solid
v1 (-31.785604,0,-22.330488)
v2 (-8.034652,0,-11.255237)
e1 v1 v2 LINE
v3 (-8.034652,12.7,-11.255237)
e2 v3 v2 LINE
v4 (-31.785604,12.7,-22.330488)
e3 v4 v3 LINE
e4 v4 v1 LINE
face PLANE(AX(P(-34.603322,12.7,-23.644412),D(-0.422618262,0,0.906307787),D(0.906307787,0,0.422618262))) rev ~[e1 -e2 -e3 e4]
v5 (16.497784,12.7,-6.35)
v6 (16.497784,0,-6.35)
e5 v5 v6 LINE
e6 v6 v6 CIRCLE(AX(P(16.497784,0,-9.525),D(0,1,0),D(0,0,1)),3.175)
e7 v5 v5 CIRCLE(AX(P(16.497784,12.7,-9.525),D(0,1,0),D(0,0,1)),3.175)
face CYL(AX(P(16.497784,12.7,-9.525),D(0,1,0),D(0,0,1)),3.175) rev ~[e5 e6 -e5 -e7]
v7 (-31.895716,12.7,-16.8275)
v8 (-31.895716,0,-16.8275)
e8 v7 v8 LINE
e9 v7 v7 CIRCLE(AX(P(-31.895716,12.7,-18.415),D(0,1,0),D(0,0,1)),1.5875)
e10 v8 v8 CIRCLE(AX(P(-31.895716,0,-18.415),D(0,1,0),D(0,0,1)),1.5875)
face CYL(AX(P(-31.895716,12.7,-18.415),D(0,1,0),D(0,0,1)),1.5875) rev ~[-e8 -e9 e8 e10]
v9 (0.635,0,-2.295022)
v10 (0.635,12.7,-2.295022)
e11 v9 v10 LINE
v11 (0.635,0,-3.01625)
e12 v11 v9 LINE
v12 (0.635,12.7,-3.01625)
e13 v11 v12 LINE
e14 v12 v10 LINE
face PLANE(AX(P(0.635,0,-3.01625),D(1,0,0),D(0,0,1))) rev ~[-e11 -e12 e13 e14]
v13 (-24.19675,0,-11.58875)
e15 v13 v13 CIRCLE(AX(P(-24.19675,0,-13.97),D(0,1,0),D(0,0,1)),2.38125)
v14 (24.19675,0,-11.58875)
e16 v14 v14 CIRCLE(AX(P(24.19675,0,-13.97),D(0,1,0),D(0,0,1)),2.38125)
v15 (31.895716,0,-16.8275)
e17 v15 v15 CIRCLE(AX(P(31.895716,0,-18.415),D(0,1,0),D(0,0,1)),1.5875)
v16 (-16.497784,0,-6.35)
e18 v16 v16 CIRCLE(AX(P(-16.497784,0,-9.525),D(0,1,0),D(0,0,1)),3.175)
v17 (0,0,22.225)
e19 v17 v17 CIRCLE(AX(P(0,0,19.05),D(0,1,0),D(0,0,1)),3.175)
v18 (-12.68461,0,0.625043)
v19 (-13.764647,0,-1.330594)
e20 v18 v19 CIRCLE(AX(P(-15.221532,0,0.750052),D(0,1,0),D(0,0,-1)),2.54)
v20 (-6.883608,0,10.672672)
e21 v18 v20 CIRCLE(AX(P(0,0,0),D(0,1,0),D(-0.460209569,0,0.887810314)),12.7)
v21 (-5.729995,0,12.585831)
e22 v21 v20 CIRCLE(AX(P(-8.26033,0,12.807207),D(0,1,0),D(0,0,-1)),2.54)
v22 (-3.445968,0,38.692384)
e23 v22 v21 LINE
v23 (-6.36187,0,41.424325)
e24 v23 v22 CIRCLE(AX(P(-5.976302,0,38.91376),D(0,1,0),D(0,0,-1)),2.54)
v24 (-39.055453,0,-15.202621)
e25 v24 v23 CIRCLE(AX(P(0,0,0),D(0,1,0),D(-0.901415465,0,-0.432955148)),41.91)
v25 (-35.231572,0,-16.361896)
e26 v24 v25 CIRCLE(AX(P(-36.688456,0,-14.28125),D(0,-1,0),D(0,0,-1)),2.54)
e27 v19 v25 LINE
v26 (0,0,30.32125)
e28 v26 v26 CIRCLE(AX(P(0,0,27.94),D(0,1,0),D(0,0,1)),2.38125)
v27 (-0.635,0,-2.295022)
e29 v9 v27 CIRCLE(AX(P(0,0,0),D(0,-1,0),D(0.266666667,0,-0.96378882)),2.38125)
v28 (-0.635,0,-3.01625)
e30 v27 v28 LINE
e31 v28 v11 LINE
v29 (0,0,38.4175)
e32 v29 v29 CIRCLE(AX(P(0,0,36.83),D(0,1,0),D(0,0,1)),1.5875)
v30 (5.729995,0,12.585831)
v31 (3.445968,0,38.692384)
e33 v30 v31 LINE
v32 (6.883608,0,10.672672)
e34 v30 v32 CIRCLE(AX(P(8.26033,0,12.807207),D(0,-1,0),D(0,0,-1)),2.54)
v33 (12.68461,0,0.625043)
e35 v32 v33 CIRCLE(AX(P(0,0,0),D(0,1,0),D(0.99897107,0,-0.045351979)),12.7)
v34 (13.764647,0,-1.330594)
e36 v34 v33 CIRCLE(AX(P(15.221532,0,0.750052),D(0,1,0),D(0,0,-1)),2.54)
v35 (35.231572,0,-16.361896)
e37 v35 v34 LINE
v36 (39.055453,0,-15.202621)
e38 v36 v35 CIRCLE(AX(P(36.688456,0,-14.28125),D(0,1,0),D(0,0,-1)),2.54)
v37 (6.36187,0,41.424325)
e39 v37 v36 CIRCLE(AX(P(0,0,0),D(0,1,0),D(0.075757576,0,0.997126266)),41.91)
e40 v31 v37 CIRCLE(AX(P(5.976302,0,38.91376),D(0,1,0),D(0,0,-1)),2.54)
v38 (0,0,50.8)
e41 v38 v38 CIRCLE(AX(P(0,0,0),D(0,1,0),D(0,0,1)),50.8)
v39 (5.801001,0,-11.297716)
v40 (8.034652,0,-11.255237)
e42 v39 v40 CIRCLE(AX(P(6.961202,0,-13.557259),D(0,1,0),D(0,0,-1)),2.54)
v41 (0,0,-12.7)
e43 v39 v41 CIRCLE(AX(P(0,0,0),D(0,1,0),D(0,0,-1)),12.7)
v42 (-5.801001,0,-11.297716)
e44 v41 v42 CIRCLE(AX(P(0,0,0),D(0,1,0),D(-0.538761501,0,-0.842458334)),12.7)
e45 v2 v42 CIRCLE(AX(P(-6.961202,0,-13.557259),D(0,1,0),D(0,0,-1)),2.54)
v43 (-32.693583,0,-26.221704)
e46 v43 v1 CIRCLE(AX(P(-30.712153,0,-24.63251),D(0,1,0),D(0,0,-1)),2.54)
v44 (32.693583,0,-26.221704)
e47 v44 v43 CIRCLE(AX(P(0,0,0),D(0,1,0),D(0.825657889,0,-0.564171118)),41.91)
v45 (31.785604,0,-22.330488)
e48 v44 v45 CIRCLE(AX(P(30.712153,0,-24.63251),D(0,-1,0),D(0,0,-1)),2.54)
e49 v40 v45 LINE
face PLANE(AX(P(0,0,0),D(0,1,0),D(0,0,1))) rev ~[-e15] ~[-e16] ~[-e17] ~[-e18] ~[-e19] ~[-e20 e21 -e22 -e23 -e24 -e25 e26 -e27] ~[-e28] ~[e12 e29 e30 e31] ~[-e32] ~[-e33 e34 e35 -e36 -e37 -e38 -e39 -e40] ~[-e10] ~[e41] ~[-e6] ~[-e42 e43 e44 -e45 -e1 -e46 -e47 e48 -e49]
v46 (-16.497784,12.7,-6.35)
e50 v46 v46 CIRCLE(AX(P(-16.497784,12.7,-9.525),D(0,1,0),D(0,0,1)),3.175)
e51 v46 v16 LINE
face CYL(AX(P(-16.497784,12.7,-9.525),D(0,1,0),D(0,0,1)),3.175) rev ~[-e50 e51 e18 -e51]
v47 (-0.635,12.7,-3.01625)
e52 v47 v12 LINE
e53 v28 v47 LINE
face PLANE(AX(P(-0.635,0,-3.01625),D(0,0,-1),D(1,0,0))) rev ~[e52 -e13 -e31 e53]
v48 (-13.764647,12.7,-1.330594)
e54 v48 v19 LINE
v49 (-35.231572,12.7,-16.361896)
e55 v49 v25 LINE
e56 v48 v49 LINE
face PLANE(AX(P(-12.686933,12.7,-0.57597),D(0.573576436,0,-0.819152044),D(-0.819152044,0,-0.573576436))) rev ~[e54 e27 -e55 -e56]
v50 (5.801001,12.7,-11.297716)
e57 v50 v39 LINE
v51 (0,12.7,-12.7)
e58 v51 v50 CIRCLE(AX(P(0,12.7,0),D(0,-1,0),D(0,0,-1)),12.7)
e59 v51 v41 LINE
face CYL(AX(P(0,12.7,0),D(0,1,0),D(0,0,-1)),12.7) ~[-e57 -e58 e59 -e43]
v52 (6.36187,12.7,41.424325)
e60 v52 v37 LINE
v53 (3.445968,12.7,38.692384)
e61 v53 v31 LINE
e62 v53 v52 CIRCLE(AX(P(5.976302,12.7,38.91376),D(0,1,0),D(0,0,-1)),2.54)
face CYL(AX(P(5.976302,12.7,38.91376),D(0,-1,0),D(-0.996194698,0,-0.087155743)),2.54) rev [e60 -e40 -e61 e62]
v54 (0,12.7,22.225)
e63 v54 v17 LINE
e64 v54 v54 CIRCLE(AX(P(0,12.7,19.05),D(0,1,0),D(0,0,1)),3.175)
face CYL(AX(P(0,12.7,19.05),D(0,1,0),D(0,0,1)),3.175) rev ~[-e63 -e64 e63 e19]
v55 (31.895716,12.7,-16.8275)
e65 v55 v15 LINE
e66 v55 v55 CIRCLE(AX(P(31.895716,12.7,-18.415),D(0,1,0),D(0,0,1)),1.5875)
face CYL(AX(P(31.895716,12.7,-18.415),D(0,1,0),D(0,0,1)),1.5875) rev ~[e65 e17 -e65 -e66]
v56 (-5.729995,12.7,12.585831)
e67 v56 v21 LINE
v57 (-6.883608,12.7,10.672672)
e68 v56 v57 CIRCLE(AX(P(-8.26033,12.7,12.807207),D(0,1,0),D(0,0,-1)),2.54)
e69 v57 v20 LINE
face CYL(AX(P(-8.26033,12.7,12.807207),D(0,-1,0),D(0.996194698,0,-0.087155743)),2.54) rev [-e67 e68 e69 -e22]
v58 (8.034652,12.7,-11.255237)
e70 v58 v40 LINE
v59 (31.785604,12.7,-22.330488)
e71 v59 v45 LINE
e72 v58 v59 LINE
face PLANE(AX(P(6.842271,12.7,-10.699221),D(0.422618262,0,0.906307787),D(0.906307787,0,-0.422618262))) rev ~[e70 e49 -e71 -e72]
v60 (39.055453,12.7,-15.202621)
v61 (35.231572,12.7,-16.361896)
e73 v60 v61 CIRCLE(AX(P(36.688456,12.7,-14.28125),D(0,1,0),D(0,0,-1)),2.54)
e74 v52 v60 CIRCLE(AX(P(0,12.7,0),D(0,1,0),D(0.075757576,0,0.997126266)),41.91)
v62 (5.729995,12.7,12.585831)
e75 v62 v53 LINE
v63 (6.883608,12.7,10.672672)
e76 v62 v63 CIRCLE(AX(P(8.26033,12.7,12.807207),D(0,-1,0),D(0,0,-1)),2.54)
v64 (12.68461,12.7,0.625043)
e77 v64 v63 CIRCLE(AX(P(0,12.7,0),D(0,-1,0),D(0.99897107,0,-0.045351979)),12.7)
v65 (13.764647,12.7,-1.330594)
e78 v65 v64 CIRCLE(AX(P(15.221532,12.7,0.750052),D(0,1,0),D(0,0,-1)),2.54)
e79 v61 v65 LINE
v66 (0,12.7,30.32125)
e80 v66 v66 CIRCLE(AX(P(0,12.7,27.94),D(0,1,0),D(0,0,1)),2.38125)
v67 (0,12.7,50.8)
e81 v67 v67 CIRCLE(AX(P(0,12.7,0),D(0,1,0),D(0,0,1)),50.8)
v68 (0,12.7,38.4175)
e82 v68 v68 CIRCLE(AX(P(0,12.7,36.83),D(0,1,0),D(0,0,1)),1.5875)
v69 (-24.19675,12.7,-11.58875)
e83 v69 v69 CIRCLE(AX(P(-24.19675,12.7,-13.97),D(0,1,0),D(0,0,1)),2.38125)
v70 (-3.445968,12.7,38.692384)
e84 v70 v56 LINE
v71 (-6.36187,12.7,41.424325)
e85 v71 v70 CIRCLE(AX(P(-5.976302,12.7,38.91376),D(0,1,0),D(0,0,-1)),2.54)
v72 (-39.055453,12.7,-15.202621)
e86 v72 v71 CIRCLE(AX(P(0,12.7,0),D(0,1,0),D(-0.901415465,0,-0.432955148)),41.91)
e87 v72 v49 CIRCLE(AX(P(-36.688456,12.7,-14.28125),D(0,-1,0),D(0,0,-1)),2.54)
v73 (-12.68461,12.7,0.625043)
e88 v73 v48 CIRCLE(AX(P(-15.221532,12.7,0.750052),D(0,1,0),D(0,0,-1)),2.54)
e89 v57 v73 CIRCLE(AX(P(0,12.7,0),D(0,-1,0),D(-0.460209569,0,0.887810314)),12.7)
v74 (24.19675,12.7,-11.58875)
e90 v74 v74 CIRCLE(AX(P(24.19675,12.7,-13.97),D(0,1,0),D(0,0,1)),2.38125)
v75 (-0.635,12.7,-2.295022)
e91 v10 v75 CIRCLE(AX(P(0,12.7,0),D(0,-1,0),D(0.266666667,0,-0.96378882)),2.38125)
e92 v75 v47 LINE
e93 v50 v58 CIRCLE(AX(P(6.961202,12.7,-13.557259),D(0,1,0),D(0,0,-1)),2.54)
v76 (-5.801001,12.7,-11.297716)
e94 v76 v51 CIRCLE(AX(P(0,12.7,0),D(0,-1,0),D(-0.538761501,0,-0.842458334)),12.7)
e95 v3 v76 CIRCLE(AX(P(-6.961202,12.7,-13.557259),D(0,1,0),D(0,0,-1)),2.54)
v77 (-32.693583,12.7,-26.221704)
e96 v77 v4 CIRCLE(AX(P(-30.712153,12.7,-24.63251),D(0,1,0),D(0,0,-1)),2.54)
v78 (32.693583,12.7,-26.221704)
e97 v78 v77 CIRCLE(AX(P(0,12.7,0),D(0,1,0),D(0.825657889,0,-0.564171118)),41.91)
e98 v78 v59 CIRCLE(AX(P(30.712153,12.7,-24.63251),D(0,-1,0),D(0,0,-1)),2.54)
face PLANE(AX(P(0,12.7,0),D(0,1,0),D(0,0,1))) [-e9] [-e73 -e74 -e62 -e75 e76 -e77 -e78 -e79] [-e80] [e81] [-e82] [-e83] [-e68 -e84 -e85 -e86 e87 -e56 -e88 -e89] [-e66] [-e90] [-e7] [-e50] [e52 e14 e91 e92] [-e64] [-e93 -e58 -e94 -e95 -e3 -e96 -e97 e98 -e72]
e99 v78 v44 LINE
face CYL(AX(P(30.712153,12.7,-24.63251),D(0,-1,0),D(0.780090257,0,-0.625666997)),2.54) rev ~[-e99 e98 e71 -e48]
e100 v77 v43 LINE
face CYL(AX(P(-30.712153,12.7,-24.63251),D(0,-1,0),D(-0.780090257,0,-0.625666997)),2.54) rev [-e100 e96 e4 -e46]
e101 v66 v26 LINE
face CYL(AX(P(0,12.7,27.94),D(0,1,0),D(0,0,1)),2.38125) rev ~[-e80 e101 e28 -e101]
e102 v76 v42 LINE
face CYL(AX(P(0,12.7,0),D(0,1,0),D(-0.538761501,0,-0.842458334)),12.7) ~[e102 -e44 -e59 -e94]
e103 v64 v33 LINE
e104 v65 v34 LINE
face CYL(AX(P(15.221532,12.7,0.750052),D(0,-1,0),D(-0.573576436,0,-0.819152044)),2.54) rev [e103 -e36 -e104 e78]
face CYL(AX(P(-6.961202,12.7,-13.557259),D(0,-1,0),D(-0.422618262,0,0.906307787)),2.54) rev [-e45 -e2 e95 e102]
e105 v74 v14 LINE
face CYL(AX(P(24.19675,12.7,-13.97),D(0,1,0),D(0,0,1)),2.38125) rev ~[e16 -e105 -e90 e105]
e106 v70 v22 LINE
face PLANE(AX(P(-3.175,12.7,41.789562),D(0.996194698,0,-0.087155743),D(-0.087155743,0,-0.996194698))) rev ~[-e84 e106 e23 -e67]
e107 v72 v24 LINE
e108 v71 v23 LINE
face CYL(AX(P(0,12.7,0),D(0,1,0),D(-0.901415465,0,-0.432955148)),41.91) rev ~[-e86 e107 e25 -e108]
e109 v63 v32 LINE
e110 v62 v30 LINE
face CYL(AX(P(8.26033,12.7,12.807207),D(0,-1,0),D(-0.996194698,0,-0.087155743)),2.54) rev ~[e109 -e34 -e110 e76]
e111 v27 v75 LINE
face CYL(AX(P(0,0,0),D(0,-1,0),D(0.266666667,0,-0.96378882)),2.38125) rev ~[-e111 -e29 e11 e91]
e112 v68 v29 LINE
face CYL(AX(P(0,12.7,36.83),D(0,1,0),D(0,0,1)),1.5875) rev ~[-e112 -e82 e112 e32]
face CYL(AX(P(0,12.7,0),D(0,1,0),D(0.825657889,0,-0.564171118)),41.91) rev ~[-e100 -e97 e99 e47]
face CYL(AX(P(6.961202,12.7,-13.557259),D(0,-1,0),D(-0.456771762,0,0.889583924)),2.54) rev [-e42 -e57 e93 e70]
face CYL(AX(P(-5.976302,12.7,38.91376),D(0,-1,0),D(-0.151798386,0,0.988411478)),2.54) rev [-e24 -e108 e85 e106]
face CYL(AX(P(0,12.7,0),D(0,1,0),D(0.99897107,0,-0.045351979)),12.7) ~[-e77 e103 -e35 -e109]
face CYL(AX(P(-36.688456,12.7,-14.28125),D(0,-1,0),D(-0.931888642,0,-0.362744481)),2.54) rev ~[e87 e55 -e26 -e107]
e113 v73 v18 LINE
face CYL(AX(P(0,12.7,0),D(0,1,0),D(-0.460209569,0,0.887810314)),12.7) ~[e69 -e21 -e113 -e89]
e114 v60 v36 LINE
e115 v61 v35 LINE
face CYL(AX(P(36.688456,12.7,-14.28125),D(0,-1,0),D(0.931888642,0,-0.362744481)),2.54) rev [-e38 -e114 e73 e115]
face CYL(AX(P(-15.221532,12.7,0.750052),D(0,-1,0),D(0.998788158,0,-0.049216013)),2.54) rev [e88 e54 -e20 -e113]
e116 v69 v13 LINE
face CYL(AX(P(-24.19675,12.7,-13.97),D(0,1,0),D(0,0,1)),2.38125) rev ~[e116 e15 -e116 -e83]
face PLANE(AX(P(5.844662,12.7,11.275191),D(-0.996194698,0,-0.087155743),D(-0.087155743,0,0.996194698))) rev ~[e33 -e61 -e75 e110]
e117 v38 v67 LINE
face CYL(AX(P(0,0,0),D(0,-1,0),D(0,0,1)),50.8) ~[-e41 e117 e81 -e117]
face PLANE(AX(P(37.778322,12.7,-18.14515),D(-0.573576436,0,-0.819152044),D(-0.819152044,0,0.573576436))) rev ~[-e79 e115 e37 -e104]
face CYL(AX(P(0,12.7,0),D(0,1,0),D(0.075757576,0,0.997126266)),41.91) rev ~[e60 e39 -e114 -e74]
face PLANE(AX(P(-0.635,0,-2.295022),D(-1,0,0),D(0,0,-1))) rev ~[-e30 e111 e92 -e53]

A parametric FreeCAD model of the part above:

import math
import FreeCAD as App
import Part
import Sketcher
from FreeCAD import Vector
Q = App.Units.Quantity


def edges_at(feature, points):
    """Names of the edges that pass closest to the given points."""
    edges = feature.Shape.Edges
    near = lambda p: min(range(len(edges)), key=lambda i: edges[i].distToShape(Part.Vertex(*p))[0])
    return sorted({f"Edge{near(p) + 1}" for p in points})

doc = App.newDocument("Part")
body = doc.addObject("PartDesign::Body", "Body")

sketch1 = body.newObject("Sketcher::SketchObject", "Sketch")
sketch1.AttachmentSupport = (doc.getObject("XZ_Plane"), [""])
sketch1.MapMode = "FlatFace"
sketch1.addGeometry(Part.Circle(Vector(0, 0, 0), Vector(0, 0, 1), 50.8), False)
sketch1.addGeometry(Part.ArcOfCircle(Part.Circle(Vector(0, 0, 0), Vector(0, 0, 1), 2.4), math.radians(-75), math.radians(255)), False)
sketch1.addGeometry(Part.LineSegment(Vector(-0.6, -2.3, 0), Vector(-0.6, -3, 0)), False)
sketch1.addGeometry(Part.LineSegment(Vector(-0.6, -3, 0), Vector(0.6, -3, 0)), False)
sketch1.addGeometry(Part.LineSegment(Vector(0.6, -3, 0), Vector(0.6, -2.3, 0)), False)
sketch1.addConstraint(Sketcher.Constraint("Coincident", 1, 2, 2, 1))
sketch1.addConstraint(Sketcher.Constraint("Coincident", 2, 2, 3, 1))
sketch1.addConstraint(Sketcher.Constraint("Coincident", 3, 2, 4, 1))
sketch1.addConstraint(Sketcher.Constraint("Coincident", 4, 2, 1, 1))
sketch1.addConstraint(Sketcher.Constraint("Vertical", 2))
sketch1.addConstraint(Sketcher.Constraint("Horizontal", 3))
sketch1.addConstraint(Sketcher.Constraint("Vertical", 4))
sketch1.addConstraint(Sketcher.Constraint("Coincident", 0, 3, -1, 1))
sketch1.addConstraint(Sketcher.Constraint("Coincident", 1, 3, -1, 1))
sketch1.addConstraint(Sketcher.Constraint("Horizontal", 1, 2, 4, 2))
sketch1.addConstraint(Sketcher.Constraint("Diameter", 0, Q("4 in")))
sketch1.addConstraint(Sketcher.Constraint("Radius", 1, Q("0.09375 in")))
sketch1.addConstraint(Sketcher.Constraint("DistanceX", 3, 1, 3, 2, Q("0.05 in")))
sketch1.addConstraint(Sketcher.Constraint("DistanceY", 2, 2, 2, 1, Q("0.721228 mm")))
pad1 = body.newObject("PartDesign::Pad", "Pad")
pad1.Profile = sketch1
pad1.Length = Q("0.5 in")
pad1.Reversed = True

sketch2 = body.newObject("Sketcher::SketchObject", "Sketch001")
sketch2.AttachmentSupport = (doc.getObject("XZ_Plane"), [""])
sketch2.MapMode = "FlatFace"
sketch2.AttachmentOffset = App.Placement(Vector(0, 0, -0.5 * 25.4), App.Rotation())
sketch2.addGeometry(Part.LineSegment(Vector(5.8, 11.3, 0), Vector(3.2, 41.8, 0)), False)
sketch2.addGeometry(Part.ArcOfCircle(Part.Circle(Vector(0, 0, 0), Vector(0, 0, 1), 41.9), math.radians(-26), math.radians(86)), False)
sketch2.addGeometry(Part.LineSegment(Vector(37.8, -18.1, 0), Vector(12.7, -0.6, 0)), False)
sketch2.addGeometry(Part.ArcOfCircle(Part.Circle(Vector(0, 0, 0), Vector(0, 0, 1), 12.7), math.radians(-3), math.radians(63)), False)
sketch2.addGeometry(Part.ArcOfCircle(Part.Circle(Vector(0, 0, 0), Vector(0, 0, 1), 41.9), math.radians(94), math.radians(206)), False)
sketch2.addGeometry(Part.LineSegment(Vector(-3.2, 41.8, 0), Vector(-5.8, 11.3, 0)), False)
sketch2.addGeometry(Part.ArcOfCircle(Part.Circle(Vector(0, 0, 0), Vector(0, 0, 1), 12.7), math.radians(117), math.radians(183)), False)
sketch2.addGeometry(Part.LineSegment(Vector(-12.7, -0.6, 0), Vector(-37.8, -18.1, 0)), False)
sketch2.addGeometry(Part.ArcOfCircle(Part.Circle(Vector(0, 0, 0), Vector(0, 0, 1), 41.9), math.radians(-146), math.radians(-34)), False)
sketch2.addGeometry(Part.LineSegment(Vector(-34.6, -23.6, 0), Vector(-6.8, -10.7, 0)), False)
sketch2.addGeometry(Part.ArcOfCircle(Part.Circle(Vector(0, 0, 0), Vector(0, 0, 1), 12.7), math.radians(-123), math.radians(-90)), False)
sketch2.addGeometry(Part.ArcOfCircle(Part.Circle(Vector(0, 0, 0), Vector(0, 0, 1), 12.7), math.radians(-90), math.radians(-57)), False)
sketch2.addGeometry(Part.LineSegment(Vector(6.8, -10.7, 0), Vector(34.6, -23.6, 0)), False)
sketch2.addGeometry(Part.Circle(Vector(0, 19.1, 0), Vector(0, 0, 1), 3.2), False)
sketch2.addGeometry(Part.Circle(Vector(0, 27.9, 0), Vector(0, 0, 1), 2.4), False)
sketch2.addGeometry(Part.Circle(Vector(0, 36.8, 0), Vector(0, 0, 1), 1.6), False)
sketch2.addGeometry(Part.Circle(Vector(-16.5, -9.5, 0), Vector(0, 0, 1), 3.2), False)
sketch2.addGeometry(Part.Circle(Vector(-24.2, -14, 0), Vector(0, 0, 1), 2.4), False)
sketch2.addGeometry(Part.Circle(Vector(-31.9, -18.4, 0), Vector(0, 0, 1), 1.6), False)
sketch2.addGeometry(Part.Circle(Vector(16.5, -9.5, 0), Vector(0, 0, 1), 3.2), False)
sketch2.addGeometry(Part.Circle(Vector(24.2, -14, 0), Vector(0, 0, 1), 2.4), False)
sketch2.addGeometry(Part.Circle(Vector(31.9, -18.4, 0), Vector(0, 0, 1), 1.6), False)
sketch2.addConstraint(Sketcher.Constraint("Coincident", 0, 2, 1, 2))
sketch2.addConstraint(Sketcher.Constraint("Coincident", 1, 1, 2, 1))
sketch2.addConstraint(Sketcher.Constraint("Coincident", 2, 2, 3, 1))
sketch2.addConstraint(Sketcher.Constraint("Coincident", 3, 2, 0, 1))
sketch2.addConstraint(Sketcher.Constraint("Coincident", 4, 1, 5, 1))
sketch2.addConstraint(Sketcher.Constraint("Coincident", 5, 2, 6, 1))
sketch2.addConstraint(Sketcher.Constraint("Coincident", 6, 2, 7, 1))
sketch2.addConstraint(Sketcher.Constraint("Coincident", 7, 2, 4, 2))
sketch2.addConstraint(Sketcher.Constraint("Coincident", 8, 1, 9, 1))
sketch2.addConstraint(Sketcher.Constraint("Coincident", 9, 2, 10, 1))
sketch2.addConstraint(Sketcher.Constraint("Tangent", 10, 2, 11, 1))
sketch2.addConstraint(Sketcher.Constraint("Coincident", 11, 2, 12, 1))
sketch2.addConstraint(Sketcher.Constraint("Coincident", 12, 2, 8, 2))
sketch2.addConstraint(Sketcher.Constraint("Coincident", 1, 3, -1, 1))
sketch2.addConstraint(Sketcher.Constraint("Coincident", 3, 3, -1, 1))
sketch2.addConstraint(Sketcher.Constraint("Coincident", 4, 3, -1, 1))
sketch2.addConstraint(Sketcher.Constraint("Coincident", 6, 3, -1, 1))
sketch2.addConstraint(Sketcher.Constraint("Coincident", 8, 3, -1, 1))
sketch2.addConstraint(Sketcher.Constraint("Coincident", 10, 3, -1, 1))
sketch2.addConstraint(Sketcher.Constraint("Equal", 1, 4))
sketch2.addConstraint(Sketcher.Constraint("Equal", 3, 6))
sketch2.addConstraint(Sketcher.Constraint("Equal", 4, 8))
sketch2.addConstraint(Sketcher.Constraint("Equal", 6, 10))
sketch2.addConstraint(Sketcher.Constraint("Equal", 10, 11))
sketch2.addConstraint(Sketcher.Constraint("Equal", 13, 16))
sketch2.addConstraint(Sketcher.Constraint("Equal", 14, 17))
sketch2.addConstraint(Sketcher.Constraint("Equal", 15, 18))
sketch2.addConstraint(Sketcher.Constraint("Equal", 16, 19))
sketch2.addConstraint(Sketcher.Constraint("Equal", 17, 20))
sketch2.addConstraint(Sketcher.Constraint("Equal", 18, 21))
sketch2.addConstraint(Sketcher.Constraint("Symmetric", 16, 3, 19, 3, -2))
sketch2.addConstraint(Sketcher.Constraint("Symmetric", 17, 3, 20, 3, -2))
sketch2.addConstraint(Sketcher.Constraint("Symmetric", 18, 3, 21, 3, -2))
sketch2.addConstraint(Sketcher.Constraint("PointOnObject", 13, 3, -2))
sketch2.addConstraint(Sketcher.Constraint("PointOnObject", 14, 3, -2))
sketch2.addConstraint(Sketcher.Constraint("PointOnObject", 15, 3, -2))
sketch2.addConstraint(Sketcher.Constraint("PointOnObject", 10, 2, -2))
sketch2.addConstraint(Sketcher.Constraint("Horizontal", 0, 2, 4, 1))
sketch2.addConstraint(Sketcher.Constraint("Horizontal", 3, 2, 5, 2))
sketch2.addConstraint(Sketcher.Constraint("Horizontal", 2, 2, 6, 2))
sketch2.addConstraint(Sketcher.Constraint("Horizontal", 1, 1, 7, 2))
sketch2.addConstraint(Sketcher.Constraint("Horizontal", 9, 2, 11, 2))
sketch2.addConstraint(Sketcher.Constraint("Horizontal", 8, 1, 12, 2))
sketch2.addConstraint(Sketcher.Constraint("Equal", 0, 2))
sketch2.addConstraint(Sketcher.Constraint("Equal", 7, 9))
sketch2.addConstraint(Sketcher.Constraint("Radius", 3, Q("0.5 in")))
sketch2.addConstraint(Sketcher.Constraint("Diameter", 13, Q("0.25 in")))
sketch2.addConstraint(Sketcher.Constraint("Radius", 1, Q("1.65 in")))
sketch2.addConstraint(Sketcher.Constraint("Diameter", 14, Q("0.1875 in")))
sketch2.addConstraint(Sketcher.Constraint("Diameter", 15, Q("0.125 in")))
sketch2.addConstraint(Sketcher.Constraint("Angle", 0, Q("95 deg")))
sketch2.addConstraint(Sketcher.Constraint("Angle", 2, Q("145 deg")))
sketch2.addConstraint(Sketcher.Constraint("Angle", 9, Q("25 deg")))
sketch2.addConstraint(Sketcher.Constraint("DistanceY", -1, 1, 14, 3, Q("1.1 in")))
sketch2.addConstraint(Sketcher.Constraint("DistanceY", 13, 3, 15, 3, Q("0.7 in")))
sketch2.addConstraint(Sketcher.Constraint("DistanceY", -1, 1, 13, 3, Q("0.75 in")))
sketch2.addConstraint(Sketcher.Constraint("DistanceY", 17, 3, -1, 1, Q("0.55 in")))
sketch2.addConstraint(Sketcher.Constraint("DistanceY", 18, 3, 16, 3, Q("0.35 in")))
sketch2.addConstraint(Sketcher.Constraint("DistanceX", 4, 1, 0, 2, Q("0.25 in")))
sketch2.addConstraint(Sketcher.Constraint("DistanceY", 16, 3, -1, 1, Q("0.375 in")))
sketch2.addConstraint(Sketcher.Constraint("DistanceX", 17, 3, -1, 1, Q("24.19675 mm")))
sketch2.addConstraint(Sketcher.Constraint("DistanceX", 18, 3, 16, 3, Q("15.397932 mm")))
sketch2.addConstraint(Sketcher.Constraint("DistanceX", 19, 3, 1, 1, Q("21.280538 mm")))
pocket1 = body.newObject("PartDesign::Pocket", "Pocket")
pocket1.Profile = sketch2
pocket1.Type = "ThroughAll"
pocket1.Reversed = True
doc.recompute()

fillet = body.newObject("PartDesign::Fillet", "Fillet")
fillet.Base = (pocket1, edges_at(pocket1, [
    (-37.778, 6.35, -18.145),
    (-12.687, 6.35, -0.576),
    (-5.845, 6.35, 11.275),
    (-3.175, 6.35, 41.79),
    (3.175, 6.35, 41.79),
    (5.845, 6.35, 11.275),
    (12.687, 6.35, -0.576),
    (37.778, 6.35, -18.145),
    (-34.603, 6.35, -23.644),
    (34.603, 6.35, -23.644),
    (6.842, 6.35, -10.699),
    (-6.842, 6.35, -10.699),
]))
fillet.Radius = Q("0.1 in")

doc.recompute()
